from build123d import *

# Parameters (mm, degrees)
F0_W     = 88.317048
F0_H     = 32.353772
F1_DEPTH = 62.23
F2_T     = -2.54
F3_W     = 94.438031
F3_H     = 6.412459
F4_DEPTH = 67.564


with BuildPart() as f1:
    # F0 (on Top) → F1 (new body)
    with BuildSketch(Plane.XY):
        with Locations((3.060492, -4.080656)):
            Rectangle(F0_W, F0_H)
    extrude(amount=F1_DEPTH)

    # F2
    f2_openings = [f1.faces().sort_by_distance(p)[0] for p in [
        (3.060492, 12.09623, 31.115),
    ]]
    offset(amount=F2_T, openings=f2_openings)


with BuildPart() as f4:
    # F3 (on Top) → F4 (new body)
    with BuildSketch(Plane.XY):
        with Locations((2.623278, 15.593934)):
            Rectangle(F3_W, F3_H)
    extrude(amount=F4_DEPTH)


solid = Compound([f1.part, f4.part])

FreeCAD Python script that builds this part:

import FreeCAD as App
import Part
import Sketcher
from FreeCAD import Vector
Q = App.Units.Quantity


def faces_at(feature, points):
    """Names of the faces that lie closest to the given points."""
    faces = feature.Shape.Faces
    near = lambda p: min(range(len(faces)), key=lambda i: faces[i].distToShape(Part.Vertex(*p))[0])
    return sorted({f"Face{near(p) + 1}" for p in points})


def add_polygon(sketch, points):
    """Adds a closed chain of lines whose ends are joined by coincident constraints."""
    first, n = sketch.GeometryCount, len(points)
    for a, b in zip(points, points[1:] + points[:1]):
        sketch.addGeometry(Part.LineSegment(App.Vector(*a, 0), App.Vector(*b, 0)), False)
    for i in range(n):
        sketch.addConstraint(Sketcher.Constraint("Coincident", first + i, 2, first + (i + 1) % n, 1))

doc = App.newDocument("Part")
body = doc.addObject("PartDesign::Body", "Body")

sketch1 = body.newObject("Sketcher::SketchObject", "Sketch")
sketch1.AttachmentSupport = (doc.getObject("XY_Plane"), [""])
sketch1.MapMode = "FlatFace"
add_polygon(sketch1, [(-41, 12), (-41, -20), (47, -20), (47, 12)])
sketch1.addConstraint(Sketcher.Constraint("Vertical", 0))
sketch1.addConstraint(Sketcher.Constraint("Horizontal", 1))
sketch1.addConstraint(Sketcher.Constraint("Vertical", 2))
sketch1.addConstraint(Sketcher.Constraint("Horizontal", 3))
sketch1.addConstraint(Sketcher.Constraint("DistanceX", 1, 1, 1, 2, Q("88.317048 mm")))
sketch1.addConstraint(Sketcher.Constraint("DistanceY", 0, 2, 0, 1, Q("32.353772 mm")))
sketch1.addConstraint(Sketcher.Constraint("DistanceY", -1, 1, 2, 2, Q("12.09623 mm")))
sketch1.addConstraint(Sketcher.Constraint("DistanceX", 0, 2, -1, 1, Q("41.098032 mm")))
pad1 = body.newObject("PartDesign::Pad", "Pad")
pad1.Profile = sketch1
pad1.Length = Q("2.45 in")
doc.recompute()

thickness = body.newObject("PartDesign::Thickness", "Thickness")
thickness.Base = (pad1, faces_at(pad1, [(3.06, 12.096, 31.115)]))
thickness.Value = Q("0.1 in")
thickness.Reversed = True
thickness.Join = "Arc"
body2 = doc.addObject("PartDesign::Body", "Body001")

sketch2 = body2.newObject("Sketcher::SketchObject", "Sketch001")
sketch2.AttachmentSupport = (doc.getObject("XY_Plane001"), [""])
sketch2.MapMode = "FlatFace"
add_polygon(sketch2, [(-45, 19), (-45, 12), (50, 12), (50, 19)])
sketch2.addConstraint(Sketcher.Constraint("Vertical", 0))
sketch2.addConstraint(Sketcher.Constraint("Horizontal", 1))
sketch2.addConstraint(Sketcher.Constraint("Vertical", 2))
sketch2.addConstraint(Sketcher.Constraint("Horizontal", 3))
sketch2.addConstraint(Sketcher.Constraint("DistanceX", 1, 1, 1, 2, Q("94.438031 mm")))
sketch2.addConstraint(Sketcher.Constraint("DistanceY", 0, 2, 0, 1, Q("6.412459 mm")))
sketch2.addConstraint(Sketcher.Constraint("DistanceX", 0, 2, -1, 1, Q("44.595737 mm")))
sketch2.addConstraint(Sketcher.Constraint("DistanceY", -1, 1, 0, 2, Q("12.387704 mm")))
pad2 = body2.newObject("PartDesign::Pad", "Pad001")
pad2.Profile = sketch2
pad2.Length = Q("2.66 in")

doc.recompute()
